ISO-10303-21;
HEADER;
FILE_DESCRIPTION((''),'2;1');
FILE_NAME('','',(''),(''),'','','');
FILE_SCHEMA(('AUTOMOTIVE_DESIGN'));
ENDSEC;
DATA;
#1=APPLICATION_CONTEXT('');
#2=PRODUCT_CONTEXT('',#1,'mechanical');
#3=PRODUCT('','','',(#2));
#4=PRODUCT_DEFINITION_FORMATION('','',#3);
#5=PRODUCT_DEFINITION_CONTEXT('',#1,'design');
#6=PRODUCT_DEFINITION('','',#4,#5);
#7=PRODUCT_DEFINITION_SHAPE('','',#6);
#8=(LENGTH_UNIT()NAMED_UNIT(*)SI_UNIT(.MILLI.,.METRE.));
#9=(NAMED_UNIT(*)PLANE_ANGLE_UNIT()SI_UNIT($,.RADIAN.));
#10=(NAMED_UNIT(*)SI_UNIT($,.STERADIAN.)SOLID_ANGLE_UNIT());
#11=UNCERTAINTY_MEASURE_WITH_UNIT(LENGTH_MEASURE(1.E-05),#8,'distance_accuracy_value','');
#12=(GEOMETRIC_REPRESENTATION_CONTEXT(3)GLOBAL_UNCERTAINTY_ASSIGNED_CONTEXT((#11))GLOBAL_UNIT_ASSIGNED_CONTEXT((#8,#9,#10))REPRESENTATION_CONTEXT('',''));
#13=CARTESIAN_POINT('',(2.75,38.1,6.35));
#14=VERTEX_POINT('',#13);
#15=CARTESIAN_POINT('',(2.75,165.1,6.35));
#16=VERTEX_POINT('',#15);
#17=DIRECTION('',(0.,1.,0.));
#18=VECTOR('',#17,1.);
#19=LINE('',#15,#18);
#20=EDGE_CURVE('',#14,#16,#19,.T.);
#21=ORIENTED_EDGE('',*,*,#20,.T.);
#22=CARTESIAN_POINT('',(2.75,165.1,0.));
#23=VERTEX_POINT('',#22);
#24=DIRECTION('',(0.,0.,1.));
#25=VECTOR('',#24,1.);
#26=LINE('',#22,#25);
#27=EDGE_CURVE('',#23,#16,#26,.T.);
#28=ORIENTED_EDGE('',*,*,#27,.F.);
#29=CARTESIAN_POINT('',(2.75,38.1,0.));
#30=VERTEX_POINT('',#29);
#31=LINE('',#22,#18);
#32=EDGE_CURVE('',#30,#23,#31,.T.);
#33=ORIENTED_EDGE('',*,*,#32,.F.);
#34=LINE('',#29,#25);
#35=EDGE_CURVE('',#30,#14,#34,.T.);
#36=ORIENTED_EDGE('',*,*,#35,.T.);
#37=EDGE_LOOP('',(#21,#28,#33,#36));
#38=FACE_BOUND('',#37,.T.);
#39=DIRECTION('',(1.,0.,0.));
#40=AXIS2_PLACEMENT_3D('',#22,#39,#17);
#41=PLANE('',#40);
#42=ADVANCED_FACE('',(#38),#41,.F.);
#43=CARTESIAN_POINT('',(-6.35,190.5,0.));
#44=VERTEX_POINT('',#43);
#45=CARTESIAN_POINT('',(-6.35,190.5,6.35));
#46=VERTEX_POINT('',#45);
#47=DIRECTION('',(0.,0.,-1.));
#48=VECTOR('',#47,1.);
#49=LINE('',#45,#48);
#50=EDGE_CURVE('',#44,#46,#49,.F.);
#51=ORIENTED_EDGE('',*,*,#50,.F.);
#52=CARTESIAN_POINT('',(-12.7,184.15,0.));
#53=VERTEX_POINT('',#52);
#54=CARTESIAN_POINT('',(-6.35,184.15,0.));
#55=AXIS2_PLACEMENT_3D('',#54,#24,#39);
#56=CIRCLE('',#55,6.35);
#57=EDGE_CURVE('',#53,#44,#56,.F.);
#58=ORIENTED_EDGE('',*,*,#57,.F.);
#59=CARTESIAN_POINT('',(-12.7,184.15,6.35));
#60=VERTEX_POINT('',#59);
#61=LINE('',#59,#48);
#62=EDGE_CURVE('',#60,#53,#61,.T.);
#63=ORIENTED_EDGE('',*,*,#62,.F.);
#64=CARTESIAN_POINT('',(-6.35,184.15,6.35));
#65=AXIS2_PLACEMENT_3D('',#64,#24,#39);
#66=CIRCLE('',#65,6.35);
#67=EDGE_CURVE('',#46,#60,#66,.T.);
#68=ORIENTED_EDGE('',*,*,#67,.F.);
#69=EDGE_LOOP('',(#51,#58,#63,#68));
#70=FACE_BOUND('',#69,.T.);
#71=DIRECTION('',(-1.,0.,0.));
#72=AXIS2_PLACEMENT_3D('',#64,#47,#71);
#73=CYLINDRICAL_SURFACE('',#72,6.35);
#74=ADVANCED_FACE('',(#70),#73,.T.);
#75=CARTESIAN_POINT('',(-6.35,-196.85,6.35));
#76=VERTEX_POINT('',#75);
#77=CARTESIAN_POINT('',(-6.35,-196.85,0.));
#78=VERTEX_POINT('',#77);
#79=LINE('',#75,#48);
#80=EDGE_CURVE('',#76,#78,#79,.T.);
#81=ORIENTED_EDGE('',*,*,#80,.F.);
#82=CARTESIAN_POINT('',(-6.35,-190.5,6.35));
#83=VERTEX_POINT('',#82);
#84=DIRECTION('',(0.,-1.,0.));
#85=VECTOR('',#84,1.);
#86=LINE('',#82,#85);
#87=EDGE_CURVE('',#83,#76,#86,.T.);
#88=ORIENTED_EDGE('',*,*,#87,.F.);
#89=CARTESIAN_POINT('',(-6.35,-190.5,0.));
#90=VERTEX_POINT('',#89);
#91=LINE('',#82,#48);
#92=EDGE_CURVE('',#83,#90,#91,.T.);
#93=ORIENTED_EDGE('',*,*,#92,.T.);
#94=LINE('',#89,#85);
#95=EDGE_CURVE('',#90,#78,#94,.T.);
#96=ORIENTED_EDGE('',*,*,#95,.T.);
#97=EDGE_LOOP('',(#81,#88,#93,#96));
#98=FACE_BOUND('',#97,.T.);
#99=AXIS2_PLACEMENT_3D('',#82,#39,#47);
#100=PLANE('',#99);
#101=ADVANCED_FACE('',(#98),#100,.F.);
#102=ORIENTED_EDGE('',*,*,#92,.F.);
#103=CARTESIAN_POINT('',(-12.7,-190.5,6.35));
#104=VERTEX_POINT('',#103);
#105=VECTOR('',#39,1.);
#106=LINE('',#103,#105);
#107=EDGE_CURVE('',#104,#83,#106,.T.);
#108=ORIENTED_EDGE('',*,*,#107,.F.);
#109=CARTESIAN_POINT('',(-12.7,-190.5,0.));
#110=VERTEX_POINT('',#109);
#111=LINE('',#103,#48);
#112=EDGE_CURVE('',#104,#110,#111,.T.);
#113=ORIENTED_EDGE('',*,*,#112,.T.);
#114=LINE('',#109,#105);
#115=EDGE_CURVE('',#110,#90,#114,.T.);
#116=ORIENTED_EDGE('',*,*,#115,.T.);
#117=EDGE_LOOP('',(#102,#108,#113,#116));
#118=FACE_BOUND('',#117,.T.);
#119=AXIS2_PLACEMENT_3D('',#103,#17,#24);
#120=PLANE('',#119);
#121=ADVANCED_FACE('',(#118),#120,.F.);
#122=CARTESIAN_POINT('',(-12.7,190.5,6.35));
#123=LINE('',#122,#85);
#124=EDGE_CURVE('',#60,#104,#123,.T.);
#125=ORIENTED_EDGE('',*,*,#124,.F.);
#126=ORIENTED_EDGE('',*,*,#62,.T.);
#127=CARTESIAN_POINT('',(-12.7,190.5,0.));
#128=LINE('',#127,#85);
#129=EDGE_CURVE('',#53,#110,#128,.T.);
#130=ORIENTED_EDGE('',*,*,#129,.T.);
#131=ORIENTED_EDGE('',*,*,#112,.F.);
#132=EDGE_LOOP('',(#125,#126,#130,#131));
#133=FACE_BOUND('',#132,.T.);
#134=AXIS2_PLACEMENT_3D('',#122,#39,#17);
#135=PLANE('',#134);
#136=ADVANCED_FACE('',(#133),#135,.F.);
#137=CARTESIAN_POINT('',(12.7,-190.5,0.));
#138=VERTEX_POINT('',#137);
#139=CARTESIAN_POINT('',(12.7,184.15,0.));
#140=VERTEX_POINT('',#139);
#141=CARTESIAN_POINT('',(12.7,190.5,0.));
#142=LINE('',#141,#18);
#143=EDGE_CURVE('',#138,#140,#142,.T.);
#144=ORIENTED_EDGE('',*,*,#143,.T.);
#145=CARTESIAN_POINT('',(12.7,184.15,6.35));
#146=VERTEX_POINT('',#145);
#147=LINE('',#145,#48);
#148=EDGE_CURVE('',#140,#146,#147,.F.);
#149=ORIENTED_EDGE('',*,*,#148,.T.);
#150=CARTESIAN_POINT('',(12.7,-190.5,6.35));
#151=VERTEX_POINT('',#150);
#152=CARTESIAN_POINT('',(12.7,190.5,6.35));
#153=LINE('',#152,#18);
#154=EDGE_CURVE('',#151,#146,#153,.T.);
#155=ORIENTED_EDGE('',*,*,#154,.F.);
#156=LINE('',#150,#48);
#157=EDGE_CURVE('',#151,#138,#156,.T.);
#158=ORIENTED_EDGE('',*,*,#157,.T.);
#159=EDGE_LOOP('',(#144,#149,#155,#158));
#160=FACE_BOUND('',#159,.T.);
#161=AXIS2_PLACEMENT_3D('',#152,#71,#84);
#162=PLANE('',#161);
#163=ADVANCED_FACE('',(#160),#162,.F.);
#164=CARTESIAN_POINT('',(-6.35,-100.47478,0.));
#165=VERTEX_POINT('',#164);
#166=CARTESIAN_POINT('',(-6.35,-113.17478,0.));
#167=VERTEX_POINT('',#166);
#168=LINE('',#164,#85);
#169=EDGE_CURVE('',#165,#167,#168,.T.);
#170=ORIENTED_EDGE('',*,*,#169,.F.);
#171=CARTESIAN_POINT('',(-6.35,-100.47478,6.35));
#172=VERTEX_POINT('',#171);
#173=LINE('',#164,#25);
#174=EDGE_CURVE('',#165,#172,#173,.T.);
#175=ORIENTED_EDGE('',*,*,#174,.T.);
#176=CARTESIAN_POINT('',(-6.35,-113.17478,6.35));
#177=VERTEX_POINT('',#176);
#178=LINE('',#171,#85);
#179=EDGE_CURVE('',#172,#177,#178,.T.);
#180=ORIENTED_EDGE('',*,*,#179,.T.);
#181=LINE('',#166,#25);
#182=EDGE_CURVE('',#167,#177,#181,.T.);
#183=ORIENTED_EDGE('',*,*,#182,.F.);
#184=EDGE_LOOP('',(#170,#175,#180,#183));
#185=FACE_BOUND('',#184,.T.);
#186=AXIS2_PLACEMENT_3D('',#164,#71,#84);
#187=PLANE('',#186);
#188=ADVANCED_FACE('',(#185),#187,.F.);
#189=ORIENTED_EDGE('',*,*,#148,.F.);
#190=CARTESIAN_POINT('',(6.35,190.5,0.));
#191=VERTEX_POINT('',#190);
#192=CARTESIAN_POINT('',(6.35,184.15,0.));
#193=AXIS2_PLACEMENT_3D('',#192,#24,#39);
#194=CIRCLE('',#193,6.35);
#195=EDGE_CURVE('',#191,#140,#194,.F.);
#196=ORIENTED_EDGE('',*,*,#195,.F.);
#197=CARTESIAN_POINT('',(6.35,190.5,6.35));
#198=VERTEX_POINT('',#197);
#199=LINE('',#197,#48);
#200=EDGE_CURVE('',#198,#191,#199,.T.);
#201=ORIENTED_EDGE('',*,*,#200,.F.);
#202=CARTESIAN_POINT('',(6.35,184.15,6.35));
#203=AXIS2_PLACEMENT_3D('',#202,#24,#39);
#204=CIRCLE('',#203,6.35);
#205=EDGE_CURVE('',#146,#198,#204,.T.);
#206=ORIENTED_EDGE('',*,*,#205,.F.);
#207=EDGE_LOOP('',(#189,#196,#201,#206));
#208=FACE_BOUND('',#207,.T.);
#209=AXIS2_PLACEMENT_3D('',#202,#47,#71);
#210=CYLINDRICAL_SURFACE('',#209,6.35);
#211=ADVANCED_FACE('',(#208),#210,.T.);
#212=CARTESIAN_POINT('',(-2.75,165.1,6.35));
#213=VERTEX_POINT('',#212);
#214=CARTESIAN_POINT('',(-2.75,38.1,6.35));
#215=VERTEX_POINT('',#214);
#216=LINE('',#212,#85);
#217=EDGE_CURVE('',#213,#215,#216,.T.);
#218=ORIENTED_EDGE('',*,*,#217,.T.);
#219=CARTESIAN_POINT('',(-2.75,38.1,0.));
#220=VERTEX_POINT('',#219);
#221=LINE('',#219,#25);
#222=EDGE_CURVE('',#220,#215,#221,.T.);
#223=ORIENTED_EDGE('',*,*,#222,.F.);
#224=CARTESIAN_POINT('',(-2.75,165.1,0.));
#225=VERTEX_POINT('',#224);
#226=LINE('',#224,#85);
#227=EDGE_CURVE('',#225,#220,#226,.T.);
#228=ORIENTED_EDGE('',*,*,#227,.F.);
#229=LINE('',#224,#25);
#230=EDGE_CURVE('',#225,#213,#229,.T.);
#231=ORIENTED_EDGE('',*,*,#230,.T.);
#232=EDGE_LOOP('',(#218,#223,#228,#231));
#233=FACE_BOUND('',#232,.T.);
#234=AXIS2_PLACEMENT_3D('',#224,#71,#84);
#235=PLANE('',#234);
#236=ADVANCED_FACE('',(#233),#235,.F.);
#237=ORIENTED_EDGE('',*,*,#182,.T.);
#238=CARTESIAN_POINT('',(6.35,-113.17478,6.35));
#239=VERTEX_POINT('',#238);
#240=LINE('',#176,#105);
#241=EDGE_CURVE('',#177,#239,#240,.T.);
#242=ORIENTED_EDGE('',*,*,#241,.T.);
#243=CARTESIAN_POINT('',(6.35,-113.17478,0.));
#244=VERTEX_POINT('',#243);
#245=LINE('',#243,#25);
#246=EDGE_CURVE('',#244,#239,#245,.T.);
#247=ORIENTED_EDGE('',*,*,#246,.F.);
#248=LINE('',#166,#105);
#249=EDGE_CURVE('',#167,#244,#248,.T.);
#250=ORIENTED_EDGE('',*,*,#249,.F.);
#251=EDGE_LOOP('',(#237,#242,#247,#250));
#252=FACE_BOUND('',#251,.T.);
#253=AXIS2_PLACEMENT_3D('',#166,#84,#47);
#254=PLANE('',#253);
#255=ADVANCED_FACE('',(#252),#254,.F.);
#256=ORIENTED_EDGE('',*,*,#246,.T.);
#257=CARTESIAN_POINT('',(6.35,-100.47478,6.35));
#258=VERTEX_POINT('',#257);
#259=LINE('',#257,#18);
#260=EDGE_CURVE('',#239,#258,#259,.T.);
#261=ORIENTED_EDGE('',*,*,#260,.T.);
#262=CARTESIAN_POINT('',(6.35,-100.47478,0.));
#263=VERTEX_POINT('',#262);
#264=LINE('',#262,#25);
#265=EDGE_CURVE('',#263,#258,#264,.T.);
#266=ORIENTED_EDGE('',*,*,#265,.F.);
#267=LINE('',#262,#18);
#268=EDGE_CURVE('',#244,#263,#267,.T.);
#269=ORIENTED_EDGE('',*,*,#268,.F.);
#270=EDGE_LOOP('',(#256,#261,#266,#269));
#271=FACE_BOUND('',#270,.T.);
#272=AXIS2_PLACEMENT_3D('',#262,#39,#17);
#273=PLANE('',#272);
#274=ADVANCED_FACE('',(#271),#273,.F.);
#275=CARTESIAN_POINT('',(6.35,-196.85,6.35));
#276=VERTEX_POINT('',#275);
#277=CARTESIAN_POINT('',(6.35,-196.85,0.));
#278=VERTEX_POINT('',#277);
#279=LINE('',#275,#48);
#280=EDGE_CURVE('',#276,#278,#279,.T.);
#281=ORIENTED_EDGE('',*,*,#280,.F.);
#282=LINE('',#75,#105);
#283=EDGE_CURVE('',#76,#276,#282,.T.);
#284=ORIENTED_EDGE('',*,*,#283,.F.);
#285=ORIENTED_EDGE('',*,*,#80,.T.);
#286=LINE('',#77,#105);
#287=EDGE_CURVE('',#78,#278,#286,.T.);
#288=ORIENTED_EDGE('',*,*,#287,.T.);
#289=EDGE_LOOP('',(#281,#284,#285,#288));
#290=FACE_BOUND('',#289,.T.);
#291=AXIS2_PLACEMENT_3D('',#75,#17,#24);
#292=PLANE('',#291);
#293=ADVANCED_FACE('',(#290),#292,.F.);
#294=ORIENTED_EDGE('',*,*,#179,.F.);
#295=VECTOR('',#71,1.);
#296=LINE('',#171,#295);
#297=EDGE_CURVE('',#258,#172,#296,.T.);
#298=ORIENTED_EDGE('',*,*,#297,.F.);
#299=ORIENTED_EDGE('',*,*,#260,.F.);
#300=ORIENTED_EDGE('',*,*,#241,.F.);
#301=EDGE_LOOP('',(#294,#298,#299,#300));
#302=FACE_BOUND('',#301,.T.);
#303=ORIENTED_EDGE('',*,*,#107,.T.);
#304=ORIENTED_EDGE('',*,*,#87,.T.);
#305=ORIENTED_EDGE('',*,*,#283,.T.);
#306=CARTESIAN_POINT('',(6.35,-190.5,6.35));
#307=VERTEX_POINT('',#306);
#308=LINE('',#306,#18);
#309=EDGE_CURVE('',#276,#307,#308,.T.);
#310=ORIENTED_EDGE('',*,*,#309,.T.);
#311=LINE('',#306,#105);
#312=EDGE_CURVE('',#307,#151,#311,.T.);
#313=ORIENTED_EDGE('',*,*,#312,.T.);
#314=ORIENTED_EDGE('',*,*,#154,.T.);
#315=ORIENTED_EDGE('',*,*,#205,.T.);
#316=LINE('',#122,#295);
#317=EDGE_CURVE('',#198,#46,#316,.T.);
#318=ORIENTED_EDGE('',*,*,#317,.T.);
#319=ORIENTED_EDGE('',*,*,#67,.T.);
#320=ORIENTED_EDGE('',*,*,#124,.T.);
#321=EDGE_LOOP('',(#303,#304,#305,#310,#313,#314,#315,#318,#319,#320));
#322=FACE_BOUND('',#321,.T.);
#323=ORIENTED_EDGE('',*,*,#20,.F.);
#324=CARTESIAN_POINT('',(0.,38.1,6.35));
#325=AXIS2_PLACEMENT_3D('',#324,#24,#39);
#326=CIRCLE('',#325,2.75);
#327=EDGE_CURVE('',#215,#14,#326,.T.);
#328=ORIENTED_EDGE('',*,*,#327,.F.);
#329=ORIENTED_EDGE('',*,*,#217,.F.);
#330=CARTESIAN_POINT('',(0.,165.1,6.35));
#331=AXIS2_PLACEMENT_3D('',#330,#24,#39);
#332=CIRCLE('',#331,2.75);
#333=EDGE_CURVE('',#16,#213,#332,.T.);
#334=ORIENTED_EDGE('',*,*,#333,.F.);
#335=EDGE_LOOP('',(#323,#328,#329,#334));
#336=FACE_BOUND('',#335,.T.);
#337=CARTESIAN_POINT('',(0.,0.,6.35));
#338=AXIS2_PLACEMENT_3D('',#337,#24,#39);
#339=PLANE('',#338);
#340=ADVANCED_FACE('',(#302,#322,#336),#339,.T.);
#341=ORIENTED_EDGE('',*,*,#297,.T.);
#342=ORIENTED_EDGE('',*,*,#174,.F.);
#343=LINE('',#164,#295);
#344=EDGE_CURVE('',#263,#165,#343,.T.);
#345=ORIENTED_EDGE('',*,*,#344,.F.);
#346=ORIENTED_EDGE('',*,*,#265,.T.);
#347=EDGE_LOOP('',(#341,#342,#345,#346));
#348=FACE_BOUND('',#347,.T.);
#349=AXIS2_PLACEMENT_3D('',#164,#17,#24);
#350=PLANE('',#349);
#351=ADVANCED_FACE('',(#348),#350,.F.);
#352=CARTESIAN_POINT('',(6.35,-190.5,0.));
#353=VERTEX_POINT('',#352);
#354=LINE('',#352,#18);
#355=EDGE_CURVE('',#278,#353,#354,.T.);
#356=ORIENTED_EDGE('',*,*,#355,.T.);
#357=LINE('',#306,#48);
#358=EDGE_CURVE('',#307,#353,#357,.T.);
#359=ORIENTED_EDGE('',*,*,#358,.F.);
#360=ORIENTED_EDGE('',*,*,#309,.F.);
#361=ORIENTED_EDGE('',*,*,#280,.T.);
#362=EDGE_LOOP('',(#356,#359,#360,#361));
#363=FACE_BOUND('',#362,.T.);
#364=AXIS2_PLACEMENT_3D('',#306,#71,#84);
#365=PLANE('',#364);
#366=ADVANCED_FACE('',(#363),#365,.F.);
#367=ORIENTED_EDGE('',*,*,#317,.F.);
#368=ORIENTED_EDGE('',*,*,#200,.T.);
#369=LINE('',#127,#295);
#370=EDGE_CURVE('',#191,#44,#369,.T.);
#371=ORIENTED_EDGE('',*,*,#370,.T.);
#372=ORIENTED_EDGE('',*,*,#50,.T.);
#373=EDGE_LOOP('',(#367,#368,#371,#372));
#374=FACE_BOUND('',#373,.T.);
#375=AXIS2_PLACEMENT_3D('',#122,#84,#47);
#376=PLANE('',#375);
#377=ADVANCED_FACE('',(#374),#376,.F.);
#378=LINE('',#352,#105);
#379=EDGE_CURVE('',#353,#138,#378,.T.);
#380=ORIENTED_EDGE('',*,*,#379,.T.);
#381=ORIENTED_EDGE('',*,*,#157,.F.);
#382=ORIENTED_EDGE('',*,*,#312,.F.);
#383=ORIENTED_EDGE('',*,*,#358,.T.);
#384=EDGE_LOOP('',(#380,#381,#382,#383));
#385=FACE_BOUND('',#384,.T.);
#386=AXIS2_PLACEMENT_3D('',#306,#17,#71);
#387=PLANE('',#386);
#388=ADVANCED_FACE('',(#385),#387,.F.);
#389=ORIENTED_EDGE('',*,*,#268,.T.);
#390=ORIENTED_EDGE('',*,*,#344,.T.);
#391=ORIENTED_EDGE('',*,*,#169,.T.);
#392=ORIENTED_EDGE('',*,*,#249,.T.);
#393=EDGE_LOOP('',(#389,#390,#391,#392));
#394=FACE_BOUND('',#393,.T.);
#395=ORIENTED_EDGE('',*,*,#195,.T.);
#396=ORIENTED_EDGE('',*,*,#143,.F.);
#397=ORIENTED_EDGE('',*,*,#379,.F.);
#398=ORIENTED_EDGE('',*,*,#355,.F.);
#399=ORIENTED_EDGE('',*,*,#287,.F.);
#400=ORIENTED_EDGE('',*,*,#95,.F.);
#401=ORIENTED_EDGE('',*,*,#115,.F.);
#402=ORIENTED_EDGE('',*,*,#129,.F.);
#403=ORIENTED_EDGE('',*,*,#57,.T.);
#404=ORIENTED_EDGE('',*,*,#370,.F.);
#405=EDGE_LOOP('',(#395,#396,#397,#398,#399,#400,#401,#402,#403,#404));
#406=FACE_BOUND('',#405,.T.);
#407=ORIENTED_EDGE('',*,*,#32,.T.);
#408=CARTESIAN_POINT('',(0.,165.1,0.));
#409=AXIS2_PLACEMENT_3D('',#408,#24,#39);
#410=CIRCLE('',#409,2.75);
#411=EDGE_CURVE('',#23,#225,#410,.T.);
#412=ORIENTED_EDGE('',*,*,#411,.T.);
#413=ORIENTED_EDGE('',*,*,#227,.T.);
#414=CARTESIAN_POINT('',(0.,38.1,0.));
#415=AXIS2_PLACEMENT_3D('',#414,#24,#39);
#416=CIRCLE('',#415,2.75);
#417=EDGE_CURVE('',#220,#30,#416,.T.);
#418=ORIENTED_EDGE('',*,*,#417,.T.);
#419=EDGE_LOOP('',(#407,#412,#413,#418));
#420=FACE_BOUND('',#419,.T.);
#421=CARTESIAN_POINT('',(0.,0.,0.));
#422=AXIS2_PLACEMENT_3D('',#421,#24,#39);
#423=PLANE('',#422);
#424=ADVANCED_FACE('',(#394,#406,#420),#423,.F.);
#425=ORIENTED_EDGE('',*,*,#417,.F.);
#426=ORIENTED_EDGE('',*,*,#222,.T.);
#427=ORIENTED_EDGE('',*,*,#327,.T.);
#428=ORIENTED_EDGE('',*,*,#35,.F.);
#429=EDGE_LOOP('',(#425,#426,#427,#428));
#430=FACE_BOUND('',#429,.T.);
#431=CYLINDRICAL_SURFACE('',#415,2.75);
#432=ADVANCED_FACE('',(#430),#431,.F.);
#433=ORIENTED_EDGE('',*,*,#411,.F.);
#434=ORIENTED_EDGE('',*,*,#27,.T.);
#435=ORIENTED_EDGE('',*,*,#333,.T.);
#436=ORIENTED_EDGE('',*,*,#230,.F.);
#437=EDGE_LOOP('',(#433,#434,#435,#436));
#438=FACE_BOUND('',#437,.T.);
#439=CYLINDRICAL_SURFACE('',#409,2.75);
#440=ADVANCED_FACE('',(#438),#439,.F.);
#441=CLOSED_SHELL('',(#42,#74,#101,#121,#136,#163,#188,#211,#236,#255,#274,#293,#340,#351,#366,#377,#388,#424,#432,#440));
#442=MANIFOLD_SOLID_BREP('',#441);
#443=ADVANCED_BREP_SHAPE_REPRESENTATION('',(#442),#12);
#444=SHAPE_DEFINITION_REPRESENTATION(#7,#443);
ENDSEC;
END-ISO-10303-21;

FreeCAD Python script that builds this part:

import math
import FreeCAD as App
import Part
import Sketcher

V = App.Vector
Q = App.Units.Quantity


def edges_at(feature, points):
    """Names of the edges that pass closest to the given points."""
    edges = feature.Shape.Edges
    near = lambda p: min(range(len(edges)), key=lambda i: edges[i].distToShape(Part.Vertex(*p))[0])
    return sorted({f"Edge{near(p) + 1}" for p in points})

doc = App.newDocument("Part")
body = doc.addObject("PartDesign::Body", "Body")

# Sketch on XY plane
sketch1 = body.newObject("Sketcher::SketchObject", "Sketch")
sketch1.AttachmentSupport = (doc.getObject("XY_Plane"), [""])
sketch1.MapMode = "FlatFace"
sketch1.addGeometry([
    Part.LineSegment(V(6, -190, 0), V(13, -190, 0)),  # 0
    Part.LineSegment(V(13, -190, 0), V(13, 190, 0)),  # 1
    Part.LineSegment(V(13, 190, 0), V(-13, 190, 0)),  # 2
    Part.LineSegment(V(-13, 190, 0), V(-13, -190, 0)),  # 3
    Part.LineSegment(V(-13, -190, 0), V(-6, -190, 0)),  # 4
    Part.LineSegment(V(-6, -190, 0), V(-6, -197, 0)),  # 5
    Part.LineSegment(V(-6, -197, 0), V(6, -197, 0)),  # 6
    Part.LineSegment(V(6, -197, 0), V(6, -190, 0)),  # 7
], False)
sketch1.addConstraint([
    Sketcher.Constraint("Coincident", 0, 2, 1, 1),
    Sketcher.Constraint("Coincident", 1, 2, 2, 1),
    Sketcher.Constraint("Coincident", 2, 2, 3, 1),
    Sketcher.Constraint("Coincident", 3, 2, 4, 1),
    Sketcher.Constraint("Coincident", 4, 2, 5, 1),
    Sketcher.Constraint("Coincident", 5, 2, 6, 1),
    Sketcher.Constraint("Coincident", 6, 2, 7, 1),
    Sketcher.Constraint("Coincident", 7, 2, 0, 1),
    Sketcher.Constraint("Horizontal", 0),
    Sketcher.Constraint("Vertical", 1),
    Sketcher.Constraint("Horizontal", 2),
    Sketcher.Constraint("Vertical", 3),
    Sketcher.Constraint("Horizontal", 4),
    Sketcher.Constraint("Vertical", 5),
    Sketcher.Constraint("Horizontal", 6),
    Sketcher.Constraint("Vertical", 7),
    Sketcher.Constraint("Symmetric", 0, 2, 2, 2, -1, 1),
    Sketcher.Constraint("Symmetric", 4, 2, 7, 2, -2),
    Sketcher.Constraint("Equal", 4, 5),
    Sketcher.Constraint("DistanceX", 2, 2, 2, 1, Q("1 in")),
    Sketcher.Constraint("DistanceY", 1, 1, 1, 2, Q("15 in")),
    Sketcher.Constraint("DistanceX", 6, 1, 6, 2, Q("0.5 in")),
])
pad1 = body.newObject("PartDesign::Pad", "Pad")
pad1.Profile = sketch1
pad1.Length = Q("0.25 in")

# Sketch on XY plane
sketch2 = body.newObject("Sketcher::SketchObject", "Sketch001")
sketch2.AttachmentSupport = (doc.getObject("XY_Plane"), [""])
sketch2.MapMode = "FlatFace"
sketch2.AttachmentOffset = App.Placement(V(0, 0, 0.25 * 25.4), App.Rotation())
sketch2.addGeometry([
    Part.LineSegment(V(-6, -100, 0), V(-6, -113, 0)),
    Part.LineSegment(V(-6, -113, 0), V(6, -113, 0)),
    Part.LineSegment(V(6, -113, 0), V(6, -100, 0)),
    Part.LineSegment(V(6, -100, 0), V(-6, -100, 0)),
], False)
sketch2.addConstraint([
    Sketcher.Constraint("Coincident", 0, 2, 1, 1),
    Sketcher.Constraint("Coincident", 1, 2, 2, 1),
    Sketcher.Constraint("Coincident", 2, 2, 3, 1),
    Sketcher.Constraint("Coincident", 3, 2, 0, 1),
    Sketcher.Constraint("Vertical", 0),
    Sketcher.Constraint("Horizontal", 1),
    Sketcher.Constraint("Vertical", 2),
    Sketcher.Constraint("Horizontal", 3),
    Sketcher.Constraint("Equal", 3, 0),
    Sketcher.Constraint("DistanceX", 1, 1, 1, 2, Q("0.5 in")),
    Sketcher.Constraint("DistanceX", 0, 2, -1, 1, Q("0.25 in")),
    Sketcher.Constraint("DistanceY", 0, 2, -1, 1, Q("4.4557 in")),
])
pocket1 = body.newObject("PartDesign::Pocket", "Pocket")
pocket1.Profile = sketch2
pocket1.Type = "ThroughAll"

# Sketch on XY plane
sketch3 = body.newObject("Sketcher::SketchObject", "Sketch002")
sketch3.AttachmentSupport = (doc.getObject("XY_Plane"), [""])
sketch3.MapMode = "FlatFace"
sketch3.AttachmentOffset = App.Placement(V(0, 0, 0.25 * 25.4), App.Rotation())
sketch3.addGeometry([
    Part.LineSegment(V(2.8, 38.1, 0), V(2.8, 165.1, 0)),
    Part.ArcOfCircle(Part.Circle(V(0, 165.1, 0), V(0, 0, 1), 2.8), math.radians(0), math.radians(180)),
    Part.LineSegment(V(-2.8, 165.1, 0), V(-2.8, 38.1, 0)),
    Part.ArcOfCircle(Part.Circle(V(0, 38.1, 0), V(0, 0, 1), 2.8), math.radians(180), math.radians(360)),
], False)
sketch3.addConstraint([
    Sketcher.Constraint("Tangent", 0, 2, 1, 1),
    Sketcher.Constraint("Tangent", 1, 2, 2, 1),
    Sketcher.Constraint("Tangent", 2, 2, 3, 1),
    Sketcher.Constraint("Tangent", 3, 2, 0, 1),
    Sketcher.Constraint("Vertical", 0),
    Sketcher.Constraint("Vertical", 2),
    Sketcher.Constraint("PointOnObject", 1, 3, -2),
    Sketcher.Constraint("DistanceY", 0, 1, 0, 2, Q("5 in")),
    Sketcher.Constraint("DistanceY", -1, 1, 1, 3, Q("6.5 in")),
    Sketcher.Constraint("Radius", 1, 2.75),
])
pocket2 = body.newObject("PartDesign::Pocket", "Pocket001")
pocket2.Profile = sketch3
pocket2.Type = "ThroughAll"
doc.recompute()

fillet = body.newObject("PartDesign::Fillet", "Fillet")
fillet.Base = (pocket2, edges_at(pocket2, [(-12.7, 190.5, 3.175), (12.7, 190.5, 3.175)]))
fillet.Radius = Q("0.25 in")

doc.recompute()
